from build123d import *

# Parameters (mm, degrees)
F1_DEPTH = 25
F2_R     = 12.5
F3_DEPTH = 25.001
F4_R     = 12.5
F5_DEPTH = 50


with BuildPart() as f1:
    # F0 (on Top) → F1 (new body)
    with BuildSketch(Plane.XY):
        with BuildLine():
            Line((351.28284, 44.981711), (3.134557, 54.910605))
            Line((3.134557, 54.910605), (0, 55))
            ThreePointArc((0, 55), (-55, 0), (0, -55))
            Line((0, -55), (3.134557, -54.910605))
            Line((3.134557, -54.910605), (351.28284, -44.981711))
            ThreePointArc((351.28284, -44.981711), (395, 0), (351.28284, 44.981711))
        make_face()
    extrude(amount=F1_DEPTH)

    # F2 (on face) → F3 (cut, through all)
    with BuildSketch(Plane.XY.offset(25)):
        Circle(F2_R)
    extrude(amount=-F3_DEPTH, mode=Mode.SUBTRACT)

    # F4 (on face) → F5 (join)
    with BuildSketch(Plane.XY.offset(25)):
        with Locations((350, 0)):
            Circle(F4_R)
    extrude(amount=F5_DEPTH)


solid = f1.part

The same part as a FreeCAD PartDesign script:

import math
import FreeCAD as App
import Part
import Sketcher
Q = App.Units.Quantity

doc = App.newDocument("Part")
params = doc.addObject("Spreadsheet::Sheet", "Params")
for row, (alias, value) in enumerate([
    ("sketch1_radius", "55 mm"),
    ("sketch1_radius2", "45 mm"),
    ("pad1_length", "25 mm"),
    ("sketch2_diameter", "25 mm"),
    ("sketch3_diameter", "25 mm"),
    ("pad2_length", "50 mm"),
], start=1):
    params.set(f"A{row}", alias)
    params.set(f"B{row}", "=" + value)
    params.setAlias(f"B{row}", alias)

body = doc.addObject("PartDesign::Body", "Body")

sketch1 = body.newObject("Sketcher::SketchObject", "Sketch")
sketch1.AttachmentSupport = (doc.getObject("XY_Plane"), [""])
sketch1.MapMode = "FlatFace"
sketch1.addGeometry(Part.LineSegment(App.Vector(351.3, 45, 0), App.Vector(3.1, 54.9, 0)), False)
sketch1.addGeometry(Part.LineSegment(App.Vector(3.1, 54.9, 0), App.Vector(0, 55, 0)), False)
sketch1.addGeometry(Part.ArcOfCircle(Part.Circle(App.Vector(0, 0, 0), App.Vector(0, 0, 1), 55), math.radians(90), math.radians(270)), False)
sketch1.addGeometry(Part.LineSegment(App.Vector(0, -55, 0), App.Vector(3.1, -54.9, 0)), False)
sketch1.addGeometry(Part.LineSegment(App.Vector(3.1, -54.9, 0), App.Vector(351.3, -45, 0)), False)
sketch1.addGeometry(Part.ArcOfCircle(Part.Circle(App.Vector(350, 0, 0), App.Vector(0, 0, 1), 45), math.radians(-88), math.radians(88)), False)
sketch1.addConstraint(Sketcher.Constraint("Coincident", 0, 2, 1, 1))
sketch1.addConstraint(Sketcher.Constraint("Coincident", 1, 2, 2, 1))
sketch1.addConstraint(Sketcher.Constraint("Coincident", 2, 2, 3, 1))
sketch1.addConstraint(Sketcher.Constraint("Coincident", 3, 2, 4, 1))
sketch1.addConstraint(Sketcher.Constraint("Tangent", 4, 2, 5, 1))
sketch1.addConstraint(Sketcher.Constraint("Tangent", 5, 2, 0, 1))
sketch1.addConstraint(Sketcher.Constraint("Coincident", 2, 3, -1, 1))
sketch1.addConstraint(Sketcher.Constraint("Symmetric", 0, 2, 3, 2, -1))
sketch1.addConstraint(Sketcher.Constraint("PointOnObject", 5, 3, -1))
sketch1.addConstraint(Sketcher.Constraint("PointOnObject", 1, 2, -2))
sketch1.addConstraint(Sketcher.Constraint("PointOnObject", 2, 2, -2))
sketch1.addConstraint(Sketcher.Constraint("Parallel", 0, 1))
sketch1.addConstraint(Sketcher.Constraint("Radius", 2, Q("55 mm")))
sketch1.addConstraint(Sketcher.Constraint("Radius", 5, Q("45 mm")))
sketch1.addConstraint(Sketcher.Constraint("DistanceX", -1, 1, 5, 3, Q("350 mm")))
sketch1.addConstraint(Sketcher.Constraint("Distance", 1, Q("3.135831 mm")))
sketch1.setExpression("Constraints[12]", "Params.sketch1_radius")
sketch1.setExpression("Constraints[13]", "Params.sketch1_radius2")
pad1 = body.newObject("PartDesign::Pad", "Pad")
pad1.Profile = sketch1
pad1.setExpression("Length", "Params.pad1_length")

sketch2 = body.newObject("Sketcher::SketchObject", "Sketch001")
sketch2.AttachmentSupport = (doc.getObject("XY_Plane"), [""])
sketch2.MapMode = "FlatFace"
sketch2.AttachmentOffset = App.Placement(App.Vector(0, 0, 25), App.Rotation())
sketch2.addGeometry(Part.Circle(App.Vector(0, 0, 0), App.Vector(0, 0, 1), 12), False)
sketch2.addConstraint(Sketcher.Constraint("Coincident", 0, 3, -1, 1))
sketch2.addConstraint(Sketcher.Constraint("Diameter", 0, Q("25 mm")))
sketch2.setExpression("Constraints[1]", "Params.sketch2_diameter")
pocket1 = body.newObject("PartDesign::Pocket", "Pocket")
pocket1.Profile = sketch2
pocket1.Type = "ThroughAll"

sketch3 = body.newObject("Sketcher::SketchObject", "Sketch002")
sketch3.AttachmentSupport = (doc.getObject("XY_Plane"), [""])
sketch3.MapMode = "FlatFace"
sketch3.AttachmentOffset = App.Placement(App.Vector(0, 0, 25), App.Rotation())
sketch3.addGeometry(Part.Circle(App.Vector(350, 0, 0), App.Vector(0, 0, 1), 12), False)
sketch3.addConstraint(Sketcher.Constraint("PointOnObject", 0, 3, -1))
sketch3.addConstraint(Sketcher.Constraint("Diameter", 0, Q("25 mm")))
sketch3.addConstraint(Sketcher.Constraint("DistanceX", -1, 1, 0, 3, Q("350 mm")))
sketch3.setExpression("Constraints[1]", "Params.sketch3_diameter")
pad2 = body.newObject("PartDesign::Pad", "Pad001")
pad2.Profile = sketch3
pad2.setExpression("Length", "Params.pad2_length")

doc.recompute()
